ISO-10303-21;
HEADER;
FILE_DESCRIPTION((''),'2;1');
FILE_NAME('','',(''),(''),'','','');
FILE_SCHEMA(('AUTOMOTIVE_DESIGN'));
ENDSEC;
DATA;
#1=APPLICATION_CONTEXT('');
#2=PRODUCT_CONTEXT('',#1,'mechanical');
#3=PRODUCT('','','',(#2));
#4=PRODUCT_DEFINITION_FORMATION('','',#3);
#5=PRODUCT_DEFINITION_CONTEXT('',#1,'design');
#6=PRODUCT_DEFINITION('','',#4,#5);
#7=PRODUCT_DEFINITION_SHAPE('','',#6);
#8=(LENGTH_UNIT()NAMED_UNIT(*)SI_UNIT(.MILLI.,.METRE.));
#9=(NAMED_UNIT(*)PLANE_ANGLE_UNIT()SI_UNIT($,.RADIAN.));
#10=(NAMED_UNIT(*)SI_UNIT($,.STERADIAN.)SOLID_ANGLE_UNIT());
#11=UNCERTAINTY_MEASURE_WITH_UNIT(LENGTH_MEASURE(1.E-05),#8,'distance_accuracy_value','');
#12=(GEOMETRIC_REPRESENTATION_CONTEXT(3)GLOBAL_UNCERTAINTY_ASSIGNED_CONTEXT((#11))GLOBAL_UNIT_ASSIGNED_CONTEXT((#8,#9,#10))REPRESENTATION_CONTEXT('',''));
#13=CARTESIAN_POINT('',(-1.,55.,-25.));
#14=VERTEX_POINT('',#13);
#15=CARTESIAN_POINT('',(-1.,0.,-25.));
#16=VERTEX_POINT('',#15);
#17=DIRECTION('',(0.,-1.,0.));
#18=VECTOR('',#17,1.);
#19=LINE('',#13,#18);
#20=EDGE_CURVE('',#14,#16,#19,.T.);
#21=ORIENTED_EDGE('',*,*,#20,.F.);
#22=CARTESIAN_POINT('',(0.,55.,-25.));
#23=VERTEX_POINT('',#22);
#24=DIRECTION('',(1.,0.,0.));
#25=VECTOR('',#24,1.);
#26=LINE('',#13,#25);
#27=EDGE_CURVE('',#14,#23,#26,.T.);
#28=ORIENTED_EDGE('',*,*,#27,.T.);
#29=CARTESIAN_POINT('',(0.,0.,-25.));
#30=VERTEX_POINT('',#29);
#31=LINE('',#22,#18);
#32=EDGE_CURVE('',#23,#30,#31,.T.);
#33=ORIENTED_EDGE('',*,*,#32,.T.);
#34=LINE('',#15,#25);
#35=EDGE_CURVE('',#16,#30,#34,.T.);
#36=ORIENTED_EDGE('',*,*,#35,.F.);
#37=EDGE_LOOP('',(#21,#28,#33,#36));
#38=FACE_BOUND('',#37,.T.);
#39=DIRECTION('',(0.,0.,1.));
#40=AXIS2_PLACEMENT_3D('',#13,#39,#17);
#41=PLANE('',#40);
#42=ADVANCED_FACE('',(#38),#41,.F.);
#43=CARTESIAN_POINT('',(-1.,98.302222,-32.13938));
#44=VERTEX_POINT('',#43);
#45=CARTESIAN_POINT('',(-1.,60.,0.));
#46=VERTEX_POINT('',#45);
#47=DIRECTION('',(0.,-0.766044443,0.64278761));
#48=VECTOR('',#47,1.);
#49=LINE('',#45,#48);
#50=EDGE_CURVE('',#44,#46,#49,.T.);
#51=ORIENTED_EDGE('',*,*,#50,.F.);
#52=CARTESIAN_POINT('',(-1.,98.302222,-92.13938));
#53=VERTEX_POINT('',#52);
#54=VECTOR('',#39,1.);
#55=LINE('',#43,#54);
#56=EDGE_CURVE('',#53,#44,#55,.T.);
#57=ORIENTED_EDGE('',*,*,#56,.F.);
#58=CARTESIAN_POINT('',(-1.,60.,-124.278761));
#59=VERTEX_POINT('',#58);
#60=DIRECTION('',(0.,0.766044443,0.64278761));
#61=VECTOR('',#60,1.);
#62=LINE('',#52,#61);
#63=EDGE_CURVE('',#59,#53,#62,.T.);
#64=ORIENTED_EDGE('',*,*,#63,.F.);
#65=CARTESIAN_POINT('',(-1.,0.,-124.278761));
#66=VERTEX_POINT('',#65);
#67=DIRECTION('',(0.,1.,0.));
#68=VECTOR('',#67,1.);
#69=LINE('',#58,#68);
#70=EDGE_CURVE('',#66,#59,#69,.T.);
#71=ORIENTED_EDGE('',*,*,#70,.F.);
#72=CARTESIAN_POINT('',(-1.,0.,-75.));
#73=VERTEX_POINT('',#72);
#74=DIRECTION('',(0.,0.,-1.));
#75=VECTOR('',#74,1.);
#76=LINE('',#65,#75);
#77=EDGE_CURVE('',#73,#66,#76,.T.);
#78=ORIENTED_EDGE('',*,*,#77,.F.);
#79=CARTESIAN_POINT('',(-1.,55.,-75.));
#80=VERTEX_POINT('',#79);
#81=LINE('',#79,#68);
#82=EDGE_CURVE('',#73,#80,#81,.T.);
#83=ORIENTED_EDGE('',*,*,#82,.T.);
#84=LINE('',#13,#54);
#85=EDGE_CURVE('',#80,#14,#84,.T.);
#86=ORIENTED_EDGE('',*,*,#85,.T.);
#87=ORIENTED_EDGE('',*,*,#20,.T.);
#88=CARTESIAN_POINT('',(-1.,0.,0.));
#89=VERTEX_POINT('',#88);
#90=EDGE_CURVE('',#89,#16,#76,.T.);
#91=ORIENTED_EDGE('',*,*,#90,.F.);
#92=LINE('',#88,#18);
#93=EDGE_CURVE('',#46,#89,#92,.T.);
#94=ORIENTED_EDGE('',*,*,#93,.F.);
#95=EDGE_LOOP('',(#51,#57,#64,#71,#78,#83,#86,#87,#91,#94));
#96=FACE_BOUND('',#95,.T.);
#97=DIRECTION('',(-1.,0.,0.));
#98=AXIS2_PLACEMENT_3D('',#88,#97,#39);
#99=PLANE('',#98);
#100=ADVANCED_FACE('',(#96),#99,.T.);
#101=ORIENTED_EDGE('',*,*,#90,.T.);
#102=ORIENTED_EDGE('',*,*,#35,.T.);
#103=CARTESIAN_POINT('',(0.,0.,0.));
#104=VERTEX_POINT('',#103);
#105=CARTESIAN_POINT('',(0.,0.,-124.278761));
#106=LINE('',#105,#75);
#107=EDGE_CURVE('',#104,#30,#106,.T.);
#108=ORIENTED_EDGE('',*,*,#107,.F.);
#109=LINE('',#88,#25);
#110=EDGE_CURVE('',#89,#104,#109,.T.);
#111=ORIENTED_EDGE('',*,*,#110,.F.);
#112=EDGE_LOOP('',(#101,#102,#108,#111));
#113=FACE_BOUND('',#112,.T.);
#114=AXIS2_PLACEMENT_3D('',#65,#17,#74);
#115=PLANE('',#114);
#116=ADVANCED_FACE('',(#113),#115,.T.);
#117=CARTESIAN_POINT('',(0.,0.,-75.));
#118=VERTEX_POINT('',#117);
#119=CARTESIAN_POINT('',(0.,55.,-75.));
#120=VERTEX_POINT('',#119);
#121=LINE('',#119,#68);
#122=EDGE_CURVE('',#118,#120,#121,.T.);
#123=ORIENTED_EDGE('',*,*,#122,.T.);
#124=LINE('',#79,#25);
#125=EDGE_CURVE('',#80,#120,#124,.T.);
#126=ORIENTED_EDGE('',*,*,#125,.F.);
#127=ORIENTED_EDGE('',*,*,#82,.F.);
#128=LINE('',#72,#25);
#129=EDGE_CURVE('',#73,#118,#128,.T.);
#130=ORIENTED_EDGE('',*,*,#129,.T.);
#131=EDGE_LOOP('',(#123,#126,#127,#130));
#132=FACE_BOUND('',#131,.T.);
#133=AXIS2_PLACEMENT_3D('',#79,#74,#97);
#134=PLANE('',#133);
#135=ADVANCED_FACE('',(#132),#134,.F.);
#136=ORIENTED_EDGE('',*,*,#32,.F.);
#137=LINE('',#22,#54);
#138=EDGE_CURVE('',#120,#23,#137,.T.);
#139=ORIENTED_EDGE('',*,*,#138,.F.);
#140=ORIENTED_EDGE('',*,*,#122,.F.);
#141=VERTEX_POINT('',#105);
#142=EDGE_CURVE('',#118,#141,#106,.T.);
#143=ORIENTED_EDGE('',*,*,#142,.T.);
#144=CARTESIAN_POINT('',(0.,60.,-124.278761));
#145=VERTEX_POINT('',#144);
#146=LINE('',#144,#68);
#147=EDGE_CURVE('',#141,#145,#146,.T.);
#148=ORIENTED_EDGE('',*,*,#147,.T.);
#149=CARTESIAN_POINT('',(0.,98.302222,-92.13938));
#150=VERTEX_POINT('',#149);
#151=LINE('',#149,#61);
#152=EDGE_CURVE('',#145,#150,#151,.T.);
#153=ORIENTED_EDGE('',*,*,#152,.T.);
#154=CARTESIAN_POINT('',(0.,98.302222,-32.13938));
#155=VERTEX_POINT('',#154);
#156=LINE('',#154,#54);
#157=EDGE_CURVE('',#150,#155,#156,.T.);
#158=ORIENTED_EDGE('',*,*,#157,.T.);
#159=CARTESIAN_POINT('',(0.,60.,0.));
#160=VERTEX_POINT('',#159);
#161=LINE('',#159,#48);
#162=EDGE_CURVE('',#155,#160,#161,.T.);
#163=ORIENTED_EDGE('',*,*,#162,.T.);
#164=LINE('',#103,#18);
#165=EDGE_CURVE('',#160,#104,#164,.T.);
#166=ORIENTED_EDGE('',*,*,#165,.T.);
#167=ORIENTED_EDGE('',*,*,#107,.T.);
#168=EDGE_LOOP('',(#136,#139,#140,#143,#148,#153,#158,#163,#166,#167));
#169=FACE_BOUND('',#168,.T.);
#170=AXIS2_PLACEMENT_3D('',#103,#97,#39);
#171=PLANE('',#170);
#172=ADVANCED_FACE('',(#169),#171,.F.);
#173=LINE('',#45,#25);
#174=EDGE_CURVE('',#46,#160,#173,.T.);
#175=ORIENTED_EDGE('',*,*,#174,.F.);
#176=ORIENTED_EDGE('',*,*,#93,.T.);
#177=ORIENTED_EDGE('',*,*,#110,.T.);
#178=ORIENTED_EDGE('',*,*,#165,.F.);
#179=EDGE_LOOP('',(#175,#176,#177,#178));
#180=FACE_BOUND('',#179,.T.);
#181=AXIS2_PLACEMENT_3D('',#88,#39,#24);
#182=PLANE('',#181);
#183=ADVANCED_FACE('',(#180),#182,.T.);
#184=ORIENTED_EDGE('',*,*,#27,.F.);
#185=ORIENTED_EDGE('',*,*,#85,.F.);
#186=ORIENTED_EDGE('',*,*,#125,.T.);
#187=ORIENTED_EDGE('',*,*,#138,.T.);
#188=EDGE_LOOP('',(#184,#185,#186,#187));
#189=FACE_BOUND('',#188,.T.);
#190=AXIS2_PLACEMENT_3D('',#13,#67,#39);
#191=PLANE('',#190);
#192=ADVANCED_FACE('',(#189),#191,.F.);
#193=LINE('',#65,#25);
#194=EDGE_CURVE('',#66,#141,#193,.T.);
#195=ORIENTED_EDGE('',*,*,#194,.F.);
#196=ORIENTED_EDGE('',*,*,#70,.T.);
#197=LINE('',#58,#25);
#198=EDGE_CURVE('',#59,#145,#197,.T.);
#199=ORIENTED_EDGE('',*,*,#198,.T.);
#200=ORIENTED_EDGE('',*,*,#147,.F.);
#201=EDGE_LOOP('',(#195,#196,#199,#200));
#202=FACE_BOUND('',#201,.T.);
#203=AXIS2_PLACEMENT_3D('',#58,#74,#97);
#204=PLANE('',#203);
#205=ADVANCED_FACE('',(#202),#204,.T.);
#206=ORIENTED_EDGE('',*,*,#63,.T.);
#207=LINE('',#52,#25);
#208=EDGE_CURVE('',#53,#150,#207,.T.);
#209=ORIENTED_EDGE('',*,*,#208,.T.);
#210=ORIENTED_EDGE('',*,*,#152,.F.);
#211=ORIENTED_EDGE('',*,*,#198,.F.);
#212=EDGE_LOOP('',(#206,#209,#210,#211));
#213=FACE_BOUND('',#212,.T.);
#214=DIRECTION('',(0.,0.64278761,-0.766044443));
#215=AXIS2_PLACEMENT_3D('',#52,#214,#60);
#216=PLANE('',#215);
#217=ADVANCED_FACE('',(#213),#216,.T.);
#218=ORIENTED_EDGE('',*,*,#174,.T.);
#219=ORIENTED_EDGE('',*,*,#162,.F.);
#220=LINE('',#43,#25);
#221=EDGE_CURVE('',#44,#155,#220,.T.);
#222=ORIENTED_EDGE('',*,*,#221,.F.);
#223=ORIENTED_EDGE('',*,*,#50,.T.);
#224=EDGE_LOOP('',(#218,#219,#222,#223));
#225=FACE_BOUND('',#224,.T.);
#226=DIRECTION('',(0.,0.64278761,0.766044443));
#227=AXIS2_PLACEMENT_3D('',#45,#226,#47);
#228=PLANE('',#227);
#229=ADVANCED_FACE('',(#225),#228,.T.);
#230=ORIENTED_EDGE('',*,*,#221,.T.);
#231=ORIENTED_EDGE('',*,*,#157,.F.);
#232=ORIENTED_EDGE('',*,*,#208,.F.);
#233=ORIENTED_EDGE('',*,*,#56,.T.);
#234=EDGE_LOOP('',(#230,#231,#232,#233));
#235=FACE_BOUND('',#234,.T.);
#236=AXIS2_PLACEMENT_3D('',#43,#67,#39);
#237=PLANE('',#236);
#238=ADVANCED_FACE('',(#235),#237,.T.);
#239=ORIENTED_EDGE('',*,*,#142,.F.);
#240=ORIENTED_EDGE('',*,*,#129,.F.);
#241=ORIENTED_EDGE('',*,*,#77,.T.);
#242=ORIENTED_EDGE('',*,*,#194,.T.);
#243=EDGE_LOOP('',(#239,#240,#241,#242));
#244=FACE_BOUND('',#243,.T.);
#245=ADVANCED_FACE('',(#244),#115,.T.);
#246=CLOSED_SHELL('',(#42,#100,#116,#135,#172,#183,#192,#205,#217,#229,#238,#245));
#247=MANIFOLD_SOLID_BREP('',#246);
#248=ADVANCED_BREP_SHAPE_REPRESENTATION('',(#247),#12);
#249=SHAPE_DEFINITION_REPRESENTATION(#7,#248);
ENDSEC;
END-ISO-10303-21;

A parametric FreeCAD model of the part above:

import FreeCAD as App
import Part
import Sketcher
from FreeCAD import Vector
Q = App.Units.Quantity

doc = App.newDocument("Part")
body = doc.addObject("PartDesign::Body", "Body")

sketch1 = body.newObject("Sketcher::SketchObject", "Sketch")
sketch1.AttachmentSupport = (doc.getObject("YZ_Plane"), [""])
sketch1.MapMode = "FlatFace"
sketch1.addGeometry([
    Part.LineSegment(Vector(60, 0, 0), Vector(0, 0, 0)),
    Part.LineSegment(Vector(0, 0, 0), Vector(0, -124, 0)),
    Part.LineSegment(Vector(0, -124, 0), Vector(60, -124, 0)),
    Part.LineSegment(Vector(60, -124, 0), Vector(98, -92, 0)),
    Part.LineSegment(Vector(98, -92, 0), Vector(98, -32, 0)),
    Part.LineSegment(Vector(98, -32, 0), Vector(60, 0, 0)),
], False)
sketch1.addConstraint([
    Sketcher.Constraint("Coincident", 0, 2, 1, 1),
    Sketcher.Constraint("Coincident", 1, 2, 2, 1),
    Sketcher.Constraint("Coincident", 2, 2, 3, 1),
    Sketcher.Constraint("Coincident", 3, 2, 4, 1),
    Sketcher.Constraint("Coincident", 4, 2, 5, 1),
    Sketcher.Constraint("Coincident", 5, 2, 0, 1),
    Sketcher.Constraint("Horizontal", 0),
    Sketcher.Constraint("Vertical", 1),
    Sketcher.Constraint("Horizontal", 2),
    Sketcher.Constraint("Vertical", 4),
    Sketcher.Constraint("Coincident", 0, 2, -1, 1),
    Sketcher.Constraint("Vertical", 2, 2, 5, 2),
    Sketcher.Constraint("Equal", 2, 4),
    Sketcher.Constraint("Equal", 3, 5),
    Sketcher.Constraint("DistanceX", 0, 2, 0, 1, 60.0),
    Sketcher.Constraint("Angle", 3, Q("40 deg")),
    Sketcher.Constraint("Distance", 3, 50.0),
])
pad1 = body.newObject("PartDesign::Pad", "Pad")
pad1.Profile = sketch1
pad1.Length = 1
pad1.Reversed = True

sketch2 = body.newObject("Sketcher::SketchObject", "Sketch001")
sketch2.AttachmentSupport = (doc.getObject("YZ_Plane"), [""])
sketch2.MapMode = "FlatFace"
sketch2.addGeometry([
    Part.LineSegment(Vector(55, -25, 0), Vector(0, -25, 0)),
    Part.LineSegment(Vector(0, -25, 0), Vector(0, -75, 0)),
    Part.LineSegment(Vector(0, -75, 0), Vector(55, -75, 0)),
    Part.LineSegment(Vector(55, -75, 0), Vector(55, -25, 0)),
], False)
sketch2.addConstraint([
    Sketcher.Constraint("Coincident", 0, 2, 1, 1),
    Sketcher.Constraint("Coincident", 1, 2, 2, 1),
    Sketcher.Constraint("Coincident", 2, 2, 3, 1),
    Sketcher.Constraint("Coincident", 3, 2, 0, 1),
    Sketcher.Constraint("Horizontal", 0),
    Sketcher.Constraint("Vertical", 1),
    Sketcher.Constraint("Horizontal", 2),
    Sketcher.Constraint("Vertical", 3),
    Sketcher.Constraint("PointOnObject", 0, 2, -2),
    Sketcher.Constraint("DistanceX", 0, 2, 0, 1, 55.0),
    Sketcher.Constraint("DistanceY", 1, 2, 1, 1, 50.0),
    Sketcher.Constraint("DistanceY", 0, 2, -1, 1, 25.0),
])
pocket1 = body.newObject("PartDesign::Pocket", "Pocket")
pocket1.Profile = sketch2
pocket1.Length = 1

doc.recompute()
